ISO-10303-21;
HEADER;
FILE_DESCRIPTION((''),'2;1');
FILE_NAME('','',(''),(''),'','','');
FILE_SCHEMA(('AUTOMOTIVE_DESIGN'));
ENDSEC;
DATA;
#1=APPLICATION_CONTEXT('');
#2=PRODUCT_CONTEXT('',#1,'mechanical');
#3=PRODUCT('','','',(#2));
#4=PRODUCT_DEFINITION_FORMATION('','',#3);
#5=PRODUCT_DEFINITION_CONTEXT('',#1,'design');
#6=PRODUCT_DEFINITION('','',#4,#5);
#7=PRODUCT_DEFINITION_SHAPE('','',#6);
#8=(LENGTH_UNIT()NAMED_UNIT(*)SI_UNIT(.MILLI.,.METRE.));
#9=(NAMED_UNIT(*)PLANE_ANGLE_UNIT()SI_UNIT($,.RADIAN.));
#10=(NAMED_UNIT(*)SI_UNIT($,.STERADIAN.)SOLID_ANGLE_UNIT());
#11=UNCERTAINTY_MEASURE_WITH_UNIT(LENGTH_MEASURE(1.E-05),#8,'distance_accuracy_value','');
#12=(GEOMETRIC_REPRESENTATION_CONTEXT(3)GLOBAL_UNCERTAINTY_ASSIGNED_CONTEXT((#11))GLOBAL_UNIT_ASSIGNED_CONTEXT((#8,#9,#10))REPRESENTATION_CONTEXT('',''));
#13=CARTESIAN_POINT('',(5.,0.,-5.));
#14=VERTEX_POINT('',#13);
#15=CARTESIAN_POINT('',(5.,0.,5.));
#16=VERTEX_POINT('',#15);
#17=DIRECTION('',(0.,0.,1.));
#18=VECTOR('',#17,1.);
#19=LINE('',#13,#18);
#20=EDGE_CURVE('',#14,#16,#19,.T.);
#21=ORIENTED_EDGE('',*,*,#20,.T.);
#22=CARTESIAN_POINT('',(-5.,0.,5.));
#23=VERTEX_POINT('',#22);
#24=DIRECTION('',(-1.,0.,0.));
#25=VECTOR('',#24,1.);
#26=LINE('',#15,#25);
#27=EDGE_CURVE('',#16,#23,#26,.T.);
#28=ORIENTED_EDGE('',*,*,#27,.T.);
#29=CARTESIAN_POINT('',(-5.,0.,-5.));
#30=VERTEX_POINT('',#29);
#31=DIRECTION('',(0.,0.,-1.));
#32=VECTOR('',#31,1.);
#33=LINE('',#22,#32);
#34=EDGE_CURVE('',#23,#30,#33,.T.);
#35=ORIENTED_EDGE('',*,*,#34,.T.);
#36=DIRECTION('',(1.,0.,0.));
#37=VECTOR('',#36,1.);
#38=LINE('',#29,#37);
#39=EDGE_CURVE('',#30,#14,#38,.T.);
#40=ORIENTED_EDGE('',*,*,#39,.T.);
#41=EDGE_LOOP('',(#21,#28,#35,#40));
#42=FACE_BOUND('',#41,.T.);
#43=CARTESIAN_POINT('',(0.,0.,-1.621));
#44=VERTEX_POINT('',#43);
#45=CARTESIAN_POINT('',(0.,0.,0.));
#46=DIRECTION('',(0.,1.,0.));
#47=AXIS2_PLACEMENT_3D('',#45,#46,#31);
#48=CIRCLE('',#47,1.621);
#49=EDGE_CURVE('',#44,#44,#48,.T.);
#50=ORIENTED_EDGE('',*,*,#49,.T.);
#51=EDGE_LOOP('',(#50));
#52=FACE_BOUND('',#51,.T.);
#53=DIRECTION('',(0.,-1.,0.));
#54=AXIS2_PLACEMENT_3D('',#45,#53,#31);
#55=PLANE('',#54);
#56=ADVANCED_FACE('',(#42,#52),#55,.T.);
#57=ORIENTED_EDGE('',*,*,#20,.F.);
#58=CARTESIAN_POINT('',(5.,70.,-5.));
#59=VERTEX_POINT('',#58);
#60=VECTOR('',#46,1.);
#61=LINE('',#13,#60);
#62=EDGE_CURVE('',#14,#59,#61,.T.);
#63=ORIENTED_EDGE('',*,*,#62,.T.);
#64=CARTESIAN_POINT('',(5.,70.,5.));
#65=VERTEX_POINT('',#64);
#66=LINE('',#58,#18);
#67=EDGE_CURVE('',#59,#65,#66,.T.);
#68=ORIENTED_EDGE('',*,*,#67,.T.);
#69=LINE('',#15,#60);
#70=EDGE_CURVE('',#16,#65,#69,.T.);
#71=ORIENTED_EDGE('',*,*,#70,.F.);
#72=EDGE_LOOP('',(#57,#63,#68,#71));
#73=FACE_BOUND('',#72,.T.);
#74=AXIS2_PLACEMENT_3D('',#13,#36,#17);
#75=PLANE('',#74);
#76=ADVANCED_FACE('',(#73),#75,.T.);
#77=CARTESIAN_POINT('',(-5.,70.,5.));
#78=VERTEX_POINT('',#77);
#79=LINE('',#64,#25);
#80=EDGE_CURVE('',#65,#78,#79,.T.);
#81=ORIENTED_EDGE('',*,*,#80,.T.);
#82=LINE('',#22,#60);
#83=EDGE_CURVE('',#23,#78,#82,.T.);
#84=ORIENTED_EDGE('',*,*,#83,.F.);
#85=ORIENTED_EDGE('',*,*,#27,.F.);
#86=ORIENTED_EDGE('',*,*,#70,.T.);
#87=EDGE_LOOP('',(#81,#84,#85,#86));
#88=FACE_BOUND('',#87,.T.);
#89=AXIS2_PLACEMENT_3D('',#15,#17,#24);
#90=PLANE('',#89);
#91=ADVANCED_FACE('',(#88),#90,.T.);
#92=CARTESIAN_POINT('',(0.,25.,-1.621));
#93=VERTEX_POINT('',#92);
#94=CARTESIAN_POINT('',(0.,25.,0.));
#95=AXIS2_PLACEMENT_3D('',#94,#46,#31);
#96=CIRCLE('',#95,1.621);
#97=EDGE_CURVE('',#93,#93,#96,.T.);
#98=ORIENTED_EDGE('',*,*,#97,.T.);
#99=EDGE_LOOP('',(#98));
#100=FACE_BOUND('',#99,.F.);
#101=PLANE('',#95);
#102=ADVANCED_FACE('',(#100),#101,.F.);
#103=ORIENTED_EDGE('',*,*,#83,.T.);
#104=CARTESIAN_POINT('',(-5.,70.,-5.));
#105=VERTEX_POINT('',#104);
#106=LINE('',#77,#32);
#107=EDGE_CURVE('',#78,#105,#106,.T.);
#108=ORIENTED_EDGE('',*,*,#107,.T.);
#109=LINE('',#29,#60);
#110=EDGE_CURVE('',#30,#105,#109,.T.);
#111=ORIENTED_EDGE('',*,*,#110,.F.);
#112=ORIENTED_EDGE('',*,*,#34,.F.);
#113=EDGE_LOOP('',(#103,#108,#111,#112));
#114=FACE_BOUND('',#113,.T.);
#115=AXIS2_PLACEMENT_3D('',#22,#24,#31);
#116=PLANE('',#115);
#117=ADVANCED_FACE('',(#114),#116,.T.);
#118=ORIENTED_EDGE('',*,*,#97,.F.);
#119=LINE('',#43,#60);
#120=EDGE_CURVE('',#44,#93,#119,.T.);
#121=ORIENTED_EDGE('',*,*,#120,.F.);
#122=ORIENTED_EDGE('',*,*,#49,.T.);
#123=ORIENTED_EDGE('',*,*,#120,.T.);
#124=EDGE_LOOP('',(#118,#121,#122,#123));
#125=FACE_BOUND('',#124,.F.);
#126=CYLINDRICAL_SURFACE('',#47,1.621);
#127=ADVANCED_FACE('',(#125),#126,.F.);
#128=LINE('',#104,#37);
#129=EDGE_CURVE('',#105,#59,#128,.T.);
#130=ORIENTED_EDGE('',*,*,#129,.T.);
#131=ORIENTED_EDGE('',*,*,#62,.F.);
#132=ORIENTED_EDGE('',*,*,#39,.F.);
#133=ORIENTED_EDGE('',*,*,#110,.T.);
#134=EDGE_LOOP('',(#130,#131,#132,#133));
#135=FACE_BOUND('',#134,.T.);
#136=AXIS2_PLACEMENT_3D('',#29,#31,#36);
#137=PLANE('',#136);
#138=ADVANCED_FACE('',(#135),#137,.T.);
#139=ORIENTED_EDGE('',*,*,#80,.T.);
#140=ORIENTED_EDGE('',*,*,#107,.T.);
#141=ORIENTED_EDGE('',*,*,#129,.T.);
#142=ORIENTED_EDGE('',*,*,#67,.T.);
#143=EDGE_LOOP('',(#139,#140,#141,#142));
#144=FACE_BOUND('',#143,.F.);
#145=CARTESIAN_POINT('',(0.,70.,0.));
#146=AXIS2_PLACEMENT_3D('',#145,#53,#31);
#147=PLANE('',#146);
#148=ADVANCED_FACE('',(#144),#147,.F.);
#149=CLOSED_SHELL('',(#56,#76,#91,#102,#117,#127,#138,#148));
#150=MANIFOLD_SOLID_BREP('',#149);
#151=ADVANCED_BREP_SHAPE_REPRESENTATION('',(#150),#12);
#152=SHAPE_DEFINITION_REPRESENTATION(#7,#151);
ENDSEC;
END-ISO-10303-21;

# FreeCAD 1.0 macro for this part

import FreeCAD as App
import Part
import Sketcher
Q = App.Units.Quantity

doc = App.newDocument("Part")
params = doc.addObject("Spreadsheet::Sheet", "Params")
for row, (alias, value) in enumerate([
    ("sketch1_width", "10 mm"),
    ("pad1_length", "70 mm"),
    ("hole_diameter", "3.242 mm"),
    ("hole_depth", "25 mm"),
], start=1):
    params.set(f"A{row}", alias)
    params.set(f"B{row}", "=" + value)
    params.setAlias(f"B{row}", alias)

body = doc.addObject("PartDesign::Body", "Body")

# Sketch on XZ plane
sketch1 = doc.addObject("Sketcher::SketchObject", "Sketch")
body.addObject(sketch1)
sketch1.AttachmentSupport = (doc.XZ_Plane, [""])
sketch1.MapMode = "FlatFace"
sketch1.addGeometry([
    Part.LineSegment(App.Vector(5, -5, 0), App.Vector(5, 5, 0)),
    Part.LineSegment(App.Vector(5, 5, 0), App.Vector(-5, 5, 0)),
    Part.LineSegment(App.Vector(-5, 5, 0), App.Vector(-5, -5, 0)),
    Part.LineSegment(App.Vector(-5, -5, 0), App.Vector(5, -5, 0)),
], False)
sketch1.addConstraint([
    Sketcher.Constraint("Coincident", 0, 2, 1, 1),
    Sketcher.Constraint("Coincident", 1, 2, 2, 1),
    Sketcher.Constraint("Coincident", 2, 2, 3, 1),
    Sketcher.Constraint("Coincident", 3, 2, 0, 1),
    Sketcher.Constraint("Vertical", 0),
    Sketcher.Constraint("Horizontal", 1),
    Sketcher.Constraint("Vertical", 2),
    Sketcher.Constraint("Horizontal", 3),
    Sketcher.Constraint("Symmetric", 0, 2, 2, 2, -1, 1),
    Sketcher.Constraint("Equal", 3, 0),
    Sketcher.Constraint("DistanceX", 1, 2, 1, 1, Q("10 mm")),
])
sketch1.setExpression("Constraints[10]", "Params.sketch1_width")
pad1 = doc.addObject("PartDesign::Pad", "Pad")
body.addObject(pad1)
pad1.Profile = sketch1
pad1.setExpression("Length", "Params.pad1_length")
pad1.Reversed = True

# Sketch on XZ plane
sketch2 = doc.addObject("Sketcher::SketchObject", "Sketch001")
body.addObject(sketch2)
sketch2.AttachmentSupport = (doc.XZ_Plane, [""])
sketch2.MapMode = "FlatFace"
sketch2.addGeometry(Part.Circle(App.Vector(0, 0, 0), App.Vector(0, 0, 1), 1.6), False)
sketch2.addConstraint([
    Sketcher.Constraint("Coincident", 0, 3, -1, 1),
    Sketcher.Constraint("Diameter", 0, Q("3.242 mm")),
])
doc.recompute()
hole = doc.addObject("PartDesign::Hole", "Hole")
body.addObject(hole)
hole.Profile = sketch2
hole.ThreadType = "None"
hole.setExpression("Diameter", "Params.hole_diameter")
hole.DepthType = "Dimension"
hole.setExpression("Depth", "Params.hole_depth")
hole.DrillPoint = "Flat"

doc.recompute()
